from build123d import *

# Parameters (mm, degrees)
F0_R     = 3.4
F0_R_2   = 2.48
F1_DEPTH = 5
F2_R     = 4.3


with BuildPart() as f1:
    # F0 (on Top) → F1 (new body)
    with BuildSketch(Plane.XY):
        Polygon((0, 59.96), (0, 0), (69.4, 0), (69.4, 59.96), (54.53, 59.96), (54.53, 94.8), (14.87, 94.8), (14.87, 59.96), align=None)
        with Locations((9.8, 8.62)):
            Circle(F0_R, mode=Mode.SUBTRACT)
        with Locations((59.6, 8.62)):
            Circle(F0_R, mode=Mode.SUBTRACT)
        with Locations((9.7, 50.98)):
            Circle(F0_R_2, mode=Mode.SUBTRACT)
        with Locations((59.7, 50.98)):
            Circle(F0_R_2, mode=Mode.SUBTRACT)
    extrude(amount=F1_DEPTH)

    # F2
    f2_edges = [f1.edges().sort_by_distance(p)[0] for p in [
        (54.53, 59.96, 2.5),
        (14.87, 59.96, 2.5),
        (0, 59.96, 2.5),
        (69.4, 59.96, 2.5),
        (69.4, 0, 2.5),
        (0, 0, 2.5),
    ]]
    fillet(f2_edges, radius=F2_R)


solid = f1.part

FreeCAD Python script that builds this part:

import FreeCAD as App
import Part
import Sketcher
from FreeCAD import Vector


def edges_at(feature, points):
    """Names of the edges that pass closest to the given points."""
    edges = feature.Shape.Edges
    near = lambda p: min(range(len(edges)), key=lambda i: edges[i].distToShape(Part.Vertex(*p))[0])
    return sorted({f"Edge{near(p) + 1}" for p in points})


def add_polygon(sketch, points):
    """Adds a closed chain of lines whose ends are joined by coincident constraints."""
    first, n = sketch.GeometryCount, len(points)
    for a, b in zip(points, points[1:] + points[:1]):
        sketch.addGeometry(Part.LineSegment(App.Vector(*a, 0), App.Vector(*b, 0)), False)
    for i in range(n):
        sketch.addConstraint(Sketcher.Constraint("Coincident", first + i, 2, first + (i + 1) % n, 1))

doc = App.newDocument("Part")
params = doc.addObject("Spreadsheet::Sheet", "Params")
for row, (alias, value) in enumerate([
    ("sketch1_diameter", "6.8 mm"),
    ("sketch1_diameter2", "4.96 mm"),
    ("sketch1_width", "69.4 mm"),
    ("sketch1_width2", "14.87 mm"),
    ("sketch1_height", "59.96 mm"),
    ("pad1_length", "5 mm"),
    ("fillet_radius", "4.3 mm"),
], start=1):
    params.set(f"A{row}", alias)
    params.set(f"B{row}", "=" + value)
    params.setAlias(f"B{row}", alias)

body = doc.addObject("PartDesign::Body", "Body")

# Sketch on XY plane
sketch1 = body.newObject("Sketcher::SketchObject", "Sketch")
sketch1.AttachmentSupport = (doc.getObject("XY_Plane"), [""])
sketch1.MapMode = "FlatFace"
add_polygon(sketch1, [(0, 60), (0, 0), (69.4, 0), (69.4, 60), (54.5, 60), (54.5, 94.8), (14.9, 94.8), (14.9, 60)])  # lines 0-7
sketch1.addGeometry(Part.Circle(Vector(9.8, 8.6, 0), Vector(0, 0, 1), 3.4), False)  # 8
sketch1.addGeometry(Part.Circle(Vector(59.6, 8.6, 0), Vector(0, 0, 1), 3.4), False)  # 9
sketch1.addGeometry(Part.Circle(Vector(9.7, 51, 0), Vector(0, 0, 1), 2.5), False)  # 10
sketch1.addGeometry(Part.Circle(Vector(59.7, 51, 0), Vector(0, 0, 1), 2.5), False)  # 11
sketch1.addConstraint([
    Sketcher.Constraint("Vertical", 0),
    Sketcher.Constraint("Horizontal", 1),
    Sketcher.Constraint("Vertical", 2),
    Sketcher.Constraint("Horizontal", 3),
    Sketcher.Constraint("Vertical", 4),
    Sketcher.Constraint("Horizontal", 5),
    Sketcher.Constraint("Vertical", 6),
    Sketcher.Constraint("Horizontal", 7),
    Sketcher.Constraint("Coincident", 0, 2, -1, 1),
    Sketcher.Constraint("Equal", 8, 9),
    Sketcher.Constraint("Equal", 10, 11),
    Sketcher.Constraint("Horizontal", 8, 3, 9, 3),
    Sketcher.Constraint("Horizontal", 10, 3, 11, 3),
    Sketcher.Constraint("Horizontal", 3, 2, 6, 2),
    Sketcher.Constraint("Equal", 3, 7),
    Sketcher.Constraint("Diameter", 8, 6.8),
    Sketcher.Constraint("Diameter", 10, 4.96),
    Sketcher.Constraint("DistanceX", 1, 1, 1, 2, 69.4),
    Sketcher.Constraint("DistanceX", 10, 3, 11, 3, 50.0),
    Sketcher.Constraint("DistanceX", 3, 2, 3, 1, 14.87),
    Sketcher.Constraint("DistanceY", 0, 2, 0, 1, 59.96),
    Sketcher.Constraint("DistanceY", 4, 1, 4, 2, 34.84),
    Sketcher.Constraint("DistanceX", -1, 1, 8, 3, 9.8),
    Sketcher.Constraint("DistanceX", -1, 1, 9, 3, 59.6),
    Sketcher.Constraint("DistanceX", -1, 1, 10, 3, 9.7),
    Sketcher.Constraint("DistanceY", -1, 1, 8, 3, 8.62),
    Sketcher.Constraint("DistanceY", -1, 1, 10, 3, 50.98),
])
sketch1.setExpression("Constraints[23]", "Params.sketch1_diameter")
sketch1.setExpression("Constraints[24]", "Params.sketch1_diameter2")
sketch1.setExpression("Constraints[25]", "Params.sketch1_width")
sketch1.setExpression("Constraints[27]", "Params.sketch1_width2")
sketch1.setExpression("Constraints[28]", "Params.sketch1_height")
pad1 = body.newObject("PartDesign::Pad", "Pad")
pad1.Profile = sketch1
pad1.setExpression("Length", "Params.pad1_length")
doc.recompute()

fillet = body.newObject("PartDesign::Fillet", "Fillet")
fillet.Base = (pad1, edges_at(pad1, [
    (54.53, 59.96, 2.5),
    (14.87, 59.96, 2.5),
    (0, 59.96, 2.5),
    (69.4, 59.96, 2.5),
    (69.4, 0, 2.5),
    (0, 0, 2.5),
]))
fillet.setExpression("Radius", "Params.fillet_radius")

doc.recompute()
